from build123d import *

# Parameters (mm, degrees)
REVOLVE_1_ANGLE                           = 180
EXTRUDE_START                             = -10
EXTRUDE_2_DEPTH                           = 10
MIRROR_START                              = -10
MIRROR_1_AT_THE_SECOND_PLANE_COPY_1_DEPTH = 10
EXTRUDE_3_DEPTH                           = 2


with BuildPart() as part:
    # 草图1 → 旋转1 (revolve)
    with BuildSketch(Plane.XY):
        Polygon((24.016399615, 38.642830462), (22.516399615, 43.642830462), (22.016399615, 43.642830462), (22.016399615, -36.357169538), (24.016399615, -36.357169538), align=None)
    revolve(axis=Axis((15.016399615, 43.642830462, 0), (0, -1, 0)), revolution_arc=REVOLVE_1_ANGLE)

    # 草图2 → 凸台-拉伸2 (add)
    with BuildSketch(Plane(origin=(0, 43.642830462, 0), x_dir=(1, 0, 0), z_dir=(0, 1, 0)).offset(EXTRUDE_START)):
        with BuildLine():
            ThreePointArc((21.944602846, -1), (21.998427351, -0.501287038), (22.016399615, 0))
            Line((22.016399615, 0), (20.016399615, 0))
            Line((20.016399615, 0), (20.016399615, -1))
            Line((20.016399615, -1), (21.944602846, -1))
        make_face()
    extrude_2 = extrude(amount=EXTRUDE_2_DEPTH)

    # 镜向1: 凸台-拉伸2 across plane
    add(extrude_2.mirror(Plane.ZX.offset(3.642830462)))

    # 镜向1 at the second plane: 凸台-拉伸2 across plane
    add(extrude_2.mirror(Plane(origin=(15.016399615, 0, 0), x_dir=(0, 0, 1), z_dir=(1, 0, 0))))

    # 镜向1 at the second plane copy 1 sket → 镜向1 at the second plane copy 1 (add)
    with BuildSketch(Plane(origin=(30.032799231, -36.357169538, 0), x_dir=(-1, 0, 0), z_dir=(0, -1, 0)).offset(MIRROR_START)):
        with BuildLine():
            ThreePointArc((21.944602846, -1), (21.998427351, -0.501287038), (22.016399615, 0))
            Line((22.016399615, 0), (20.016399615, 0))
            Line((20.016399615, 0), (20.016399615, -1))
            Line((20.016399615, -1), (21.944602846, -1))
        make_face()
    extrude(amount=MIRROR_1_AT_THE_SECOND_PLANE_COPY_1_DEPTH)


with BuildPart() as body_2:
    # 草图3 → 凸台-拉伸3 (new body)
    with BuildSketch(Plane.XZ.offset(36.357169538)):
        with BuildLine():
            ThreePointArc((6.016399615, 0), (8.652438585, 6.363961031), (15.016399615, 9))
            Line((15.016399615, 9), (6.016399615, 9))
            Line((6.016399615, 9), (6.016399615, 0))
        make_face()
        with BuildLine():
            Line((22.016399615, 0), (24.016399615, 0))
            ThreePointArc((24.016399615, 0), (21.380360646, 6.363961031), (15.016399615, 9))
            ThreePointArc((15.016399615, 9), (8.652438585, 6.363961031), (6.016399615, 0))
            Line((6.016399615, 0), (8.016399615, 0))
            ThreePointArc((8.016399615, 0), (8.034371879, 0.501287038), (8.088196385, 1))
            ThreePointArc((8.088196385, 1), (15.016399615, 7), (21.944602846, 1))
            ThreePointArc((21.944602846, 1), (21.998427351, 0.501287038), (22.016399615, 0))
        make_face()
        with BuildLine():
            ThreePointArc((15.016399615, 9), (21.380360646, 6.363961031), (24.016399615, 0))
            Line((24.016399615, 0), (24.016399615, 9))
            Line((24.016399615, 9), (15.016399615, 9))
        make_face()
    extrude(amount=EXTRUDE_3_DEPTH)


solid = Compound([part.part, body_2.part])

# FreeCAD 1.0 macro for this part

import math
import FreeCAD as App
import Part
import Sketcher
Q = App.Units.Quantity


def add_polygon(sketch, points):
    """Adds a closed chain of lines whose ends are joined by coincident constraints."""
    first, n = sketch.GeometryCount, len(points)
    for a, b in zip(points, points[1:] + points[:1]):
        sketch.addGeometry(Part.LineSegment(App.Vector(*a, 0), App.Vector(*b, 0)), False)
    for i in range(n):
        sketch.addConstraint(Sketcher.Constraint("Coincident", first + i, 2, first + (i + 1) % n, 1))

doc = App.newDocument("Part")
body = doc.addObject("PartDesign::Body", "Body")

sketch1 = body.newObject("Sketcher::SketchObject", "Sketch")
sketch1.AttachmentSupport = (doc.getObject("XY_Plane"), [""])
sketch1.MapMode = "FlatFace"
add_polygon(sketch1, [(24, 38.6), (22.5, 43.6), (22, 43.6), (22, -36.4), (24, -36.4)])
sketch1.addGeometry(Part.LineSegment(App.Vector(15, 43.6, 0), App.Vector(15, -36.4, 0)), True)
sketch1.addConstraint([
    Sketcher.Constraint("Horizontal", 1),
    Sketcher.Constraint("Vertical", 2),
    Sketcher.Constraint("Horizontal", 3),
    Sketcher.Constraint("Vertical", 4),
    Sketcher.Constraint("Vertical", 5),
    Sketcher.Constraint("Horizontal", 1, 2, 5, 1),
    Sketcher.Constraint("Horizontal", 3, 2, 5, 2),
    Sketcher.Constraint("DistanceX", 3, 1, 3, 2, Q("2 mm")),
    Sketcher.Constraint("DistanceY", 2, 2, 2, 1, Q("80 mm")),
    Sketcher.Constraint("DistanceY", 4, 1, 4, 2, Q("75 mm")),
    Sketcher.Constraint("DistanceX", 1, 2, 1, 1, Q("0.5 mm")),
    Sketcher.Constraint("DistanceX", 5, 1, 1, 2, Q("7 mm")),
    Sketcher.Constraint("DistanceX", -1, 1, 0, 2, Q("22.5164 mm")),
    Sketcher.Constraint("DistanceY", -1, 1, 0, 2, Q("43.64283 mm")),
])
revolution = body.newObject("PartDesign::Revolution", "Revolution")
revolution.Profile = sketch1
revolution.ReferenceAxis = (sketch1, ["Axis0"])
revolution.Angle = 180

sketch2 = body.newObject("Sketcher::SketchObject", "Sketch001")
sketch2.AttachmentSupport = (doc.getObject("XZ_Plane"), [""])
sketch2.MapMode = "FlatFace"
sketch2.AttachmentOffset = App.Placement(App.Vector(0, 0, -33.64283), App.Rotation())
sketch2.addGeometry([
    Part.ArcOfCircle(Part.Circle(App.Vector(15, 0, 0), App.Vector(0, 0, 1), 7), math.radians(0), math.radians(8.21)),
    Part.LineSegment(App.Vector(22, 0, 0), App.Vector(20, 0, 0)),
    Part.LineSegment(App.Vector(20, 0, 0), App.Vector(20, 1, 0)),
    Part.LineSegment(App.Vector(20, 1, 0), App.Vector(21.9, 1, 0)),
], False)
sketch2.addConstraint([
    Sketcher.Constraint("Coincident", 0, 1, 1, 1),
    Sketcher.Constraint("Coincident", 1, 2, 2, 1),
    Sketcher.Constraint("Coincident", 2, 2, 3, 1),
    Sketcher.Constraint("Coincident", 3, 2, 0, 2),
    Sketcher.Constraint("Horizontal", 1),
    Sketcher.Constraint("Vertical", 2),
    Sketcher.Constraint("Horizontal", 3),
    Sketcher.Constraint("PointOnObject", 0, 3, -1),
    Sketcher.Constraint("PointOnObject", 0, 1, -1),
    Sketcher.Constraint("Radius", 0, Q("7 mm")),
    Sketcher.Constraint("DistanceX", 1, 2, 1, 1, Q("2 mm")),
    Sketcher.Constraint("DistanceY", 2, 1, 2, 2, Q("1 mm")),
    Sketcher.Constraint("DistanceX", -1, 1, 0, 3, Q("15.016399 mm")),
])
pad1 = body.newObject("PartDesign::Pad", "Pad")
pad1.Profile = sketch2
pad1.Length = 10
pad1.Reversed = True
doc.recompute()

datumplane = body.newObject("PartDesign::Plane", "DatumPlane")
datumplane.AttachmentSupport = (doc.getObject("XZ_Plane"), [""])
datumplane.MapMode = "FlatFace"
datumplane.AttachmentOffset = App.Placement(App.Vector(0, 0, -3.64283), App.Rotation())
mirrored = body.newObject("PartDesign::Mirrored", "Mirrored")
mirrored.Originals = [pad1]
mirrored.MirrorPlane = (datumplane, [""])
body.Tip = mirrored
doc.recompute()

datumplane2 = body.newObject("PartDesign::Plane", "DatumPlane001")
datumplane2.AttachmentSupport = (doc.getObject("YZ_Plane"), [""])
datumplane2.MapMode = "FlatFace"
datumplane2.AttachmentOffset = App.Placement(App.Vector(0, 0, 15.0164), App.Rotation())
mirrored2 = body.newObject("PartDesign::Mirrored", "Mirrored001")
mirrored2.Originals = [pad1]
mirrored2.MirrorPlane = (datumplane2, [""])
body.Tip = mirrored2

sketch3 = body.newObject("Sketcher::SketchObject", "Sketch002")
sketch3.AttachmentSupport = (doc.getObject("XZ_Plane"), [""])
sketch3.MapMode = "FlatFace"
sketch3.AttachmentOffset = App.Placement(App.Vector(0, 0, 26.35717), App.Rotation())
sketch3.addGeometry([
    Part.ArcOfCircle(Part.Circle(App.Vector(15, 0, 0), App.Vector(0, 0, 1), 7), math.radians(171.79), math.radians(180)),
    Part.LineSegment(App.Vector(8, 0, 0), App.Vector(10, 0, 0)),
    Part.LineSegment(App.Vector(10, 0, 0), App.Vector(10, 1, 0)),
    Part.LineSegment(App.Vector(10, 1, 0), App.Vector(8.1, 1, 0)),
], False)
sketch3.addConstraint([
    Sketcher.Constraint("Coincident", 0, 2, 1, 1),
    Sketcher.Constraint("Coincident", 1, 2, 2, 1),
    Sketcher.Constraint("Coincident", 2, 2, 3, 1),
    Sketcher.Constraint("Coincident", 3, 2, 0, 1),
    Sketcher.Constraint("Horizontal", 1),
    Sketcher.Constraint("Vertical", 2),
    Sketcher.Constraint("Horizontal", 3),
    Sketcher.Constraint("PointOnObject", 0, 3, -1),
    Sketcher.Constraint("PointOnObject", 0, 2, -1),
    Sketcher.Constraint("Radius", 0, Q("7 mm")),
    Sketcher.Constraint("DistanceX", 1, 1, 1, 2, Q("2 mm")),
    Sketcher.Constraint("DistanceY", 2, 1, 2, 2, Q("1 mm")),
    Sketcher.Constraint("DistanceX", -1, 1, 0, 3, Q("15.0164 mm")),
])
pad2 = body.newObject("PartDesign::Pad", "Pad001")
pad2.Profile = sketch3
pad2.Length = 10
body2 = doc.addObject("PartDesign::Body", "Body001")

sketch4 = body2.newObject("Sketcher::SketchObject", "Sketch003")
sketch4.AttachmentSupport = (doc.getObject("XZ_Plane001"), [""])
sketch4.MapMode = "FlatFace"
sketch4.AttachmentOffset = App.Placement(App.Vector(0, 0, 36.35717), App.Rotation())
sketch4.addGeometry([
    Part.LineSegment(App.Vector(6, 9, 0), App.Vector(6, 0, 0)),
    Part.LineSegment(App.Vector(6, 0, 0), App.Vector(8, 0, 0)),
    Part.ArcOfCircle(Part.Circle(App.Vector(15, 0, 0), App.Vector(0, 0, 1), 7), math.radians(171.79), math.radians(180)),
    Part.ArcOfCircle(Part.Circle(App.Vector(15, 0, 0), App.Vector(0, 0, 1), 7), math.radians(8), math.radians(172)),
    Part.ArcOfCircle(Part.Circle(App.Vector(15, 0, 0), App.Vector(0, 0, 1), 7), math.radians(0), math.radians(8.21)),
    Part.LineSegment(App.Vector(22, 0, 0), App.Vector(24, 0, 0)),
    Part.LineSegment(App.Vector(24, 0, 0), App.Vector(24, 9, 0)),
    Part.LineSegment(App.Vector(24, 9, 0), App.Vector(6, 9, 0)),
], False)
sketch4.addConstraint([
    Sketcher.Constraint("Coincident", 0, 2, 1, 1),
    Sketcher.Constraint("Coincident", 1, 2, 2, 2),
    Sketcher.Constraint("Tangent", 2, 1, 3, 2),
    Sketcher.Constraint("Tangent", 3, 1, 4, 2),
    Sketcher.Constraint("Coincident", 4, 1, 5, 1),
    Sketcher.Constraint("Coincident", 5, 2, 6, 1),
    Sketcher.Constraint("Coincident", 6, 2, 7, 1),
    Sketcher.Constraint("Coincident", 7, 2, 0, 1),
    Sketcher.Constraint("Vertical", 0),
    Sketcher.Constraint("Horizontal", 1),
    Sketcher.Constraint("Horizontal", 5),
    Sketcher.Constraint("Vertical", 6),
    Sketcher.Constraint("Horizontal", 7),
    Sketcher.Constraint("Coincident", 4, 3, 2, 3),
    Sketcher.Constraint("PointOnObject", 2, 3, -1),
    Sketcher.Constraint("PointOnObject", 0, 2, -1),
    Sketcher.Constraint("PointOnObject", 4, 1, -1),
    Sketcher.Constraint("Horizontal", 2, 1, 3, 1),
    Sketcher.Constraint("Equal", 1, 5),
    Sketcher.Constraint("Radius", 2, Q("7 mm")),
    Sketcher.Constraint("DistanceX", 1, 1, 1, 2, Q("2 mm")),
    Sketcher.Constraint("DistanceY", 0, 2, 0, 1, Q("9 mm")),
    Sketcher.Constraint("DistanceY", -1, 1, 2, 1, Q("1 mm")),
    Sketcher.Constraint("DistanceX", -1, 1, 2, 3, Q("15.0164 mm")),
])
pad3 = body2.newObject("PartDesign::Pad", "Pad002")
pad3.Profile = sketch4
pad3.Length = 2

doc.recompute()
